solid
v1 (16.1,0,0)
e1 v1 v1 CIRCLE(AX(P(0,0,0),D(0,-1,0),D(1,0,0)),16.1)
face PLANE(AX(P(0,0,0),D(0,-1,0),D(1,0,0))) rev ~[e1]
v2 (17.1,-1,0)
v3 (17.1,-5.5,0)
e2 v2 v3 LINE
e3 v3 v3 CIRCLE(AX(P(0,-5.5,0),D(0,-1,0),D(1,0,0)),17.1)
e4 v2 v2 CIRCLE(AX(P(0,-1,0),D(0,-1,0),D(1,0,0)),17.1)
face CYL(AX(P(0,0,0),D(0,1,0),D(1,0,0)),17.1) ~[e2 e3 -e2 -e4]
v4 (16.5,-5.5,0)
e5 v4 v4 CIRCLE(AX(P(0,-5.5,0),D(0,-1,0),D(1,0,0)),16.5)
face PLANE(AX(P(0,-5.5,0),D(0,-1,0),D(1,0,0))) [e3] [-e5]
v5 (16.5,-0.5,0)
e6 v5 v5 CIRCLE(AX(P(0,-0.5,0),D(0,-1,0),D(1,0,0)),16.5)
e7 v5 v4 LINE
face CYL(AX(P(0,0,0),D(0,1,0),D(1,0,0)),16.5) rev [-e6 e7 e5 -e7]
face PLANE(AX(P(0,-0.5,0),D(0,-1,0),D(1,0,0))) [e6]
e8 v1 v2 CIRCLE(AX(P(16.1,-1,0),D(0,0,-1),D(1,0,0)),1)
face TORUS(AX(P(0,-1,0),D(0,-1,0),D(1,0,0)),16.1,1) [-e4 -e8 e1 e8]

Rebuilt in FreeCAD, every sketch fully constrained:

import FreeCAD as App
import Part
import Sketcher


def edges_at(feature, points):
    """Names of the edges that pass closest to the given points."""
    edges = feature.Shape.Edges
    near = lambda p: min(range(len(edges)), key=lambda i: edges[i].distToShape(Part.Vertex(*p))[0])
    return sorted({f"Edge{near(p) + 1}" for p in points})

doc = App.newDocument("Part")
params = doc.addObject("Spreadsheet::Sheet", "Params")
for row, (alias, value) in enumerate([
    ("sketch1_diameter", "33 mm"),
    ("sketch1_diameter2", "34.2 mm"),
    ("pad1_length", "5.5 mm"),
    ("sketch2_diameter", "33 mm"),
    ("pad2_length", "0.5 mm"),
    ("fillet_radius", "1 mm"),
], start=1):
    params.set(f"A{row}", alias)
    params.set(f"B{row}", "=" + value)
    params.setAlias(f"B{row}", alias)

body = doc.addObject("PartDesign::Body", "Body")

# Sketch on XZ plane
sketch1 = body.newObject("Sketcher::SketchObject", "Sketch")
sketch1.AttachmentSupport = (doc.getObject("XZ_Plane"), [""])
sketch1.MapMode = "FlatFace"
sketch1.addGeometry([
    Part.Circle(App.Vector(0, 0, 0), App.Vector(0, 0, 1), 17.1),
    Part.Circle(App.Vector(0, 0, 0), App.Vector(0, 0, 1), 16.5),
], False)
sketch1.addConstraint([
    Sketcher.Constraint("Coincident", 0, 3, -1, 1),
    Sketcher.Constraint("Coincident", 1, 3, -1, 1),
    Sketcher.Constraint("Diameter", 1, 33.0),
    Sketcher.Constraint("Diameter", 0, 34.2),
])
sketch1.setExpression("Constraints[2]", "Params.sketch1_diameter")
sketch1.setExpression("Constraints[3]", "Params.sketch1_diameter2")
pad1 = body.newObject("PartDesign::Pad", "Pad")
pad1.Profile = sketch1
pad1.setExpression("Length", "Params.pad1_length")

# Sketch on XZ plane
sketch2 = body.newObject("Sketcher::SketchObject", "Sketch001")
sketch2.AttachmentSupport = (doc.getObject("XZ_Plane"), [""])
sketch2.MapMode = "FlatFace"
sketch2.addGeometry(Part.Circle(App.Vector(0, 0, 0), App.Vector(0, 0, 1), 16.5), False)
sketch2.addConstraint([
    Sketcher.Constraint("Coincident", 0, 3, -1, 1),
    Sketcher.Constraint("Diameter", 0, 33.0),
])
sketch2.setExpression("Constraints[1]", "Params.sketch2_diameter")
pad2 = body.newObject("PartDesign::Pad", "Pad001")
pad2.Profile = sketch2
pad2.setExpression("Length", "Params.pad2_length")
doc.recompute()

fillet = body.newObject("PartDesign::Fillet", "Fillet")
fillet.Base = (pad2, edges_at(pad2, [(-17.1, 0, 0)]))
fillet.setExpression("Radius", "Params.fillet_radius")

doc.recompute()
